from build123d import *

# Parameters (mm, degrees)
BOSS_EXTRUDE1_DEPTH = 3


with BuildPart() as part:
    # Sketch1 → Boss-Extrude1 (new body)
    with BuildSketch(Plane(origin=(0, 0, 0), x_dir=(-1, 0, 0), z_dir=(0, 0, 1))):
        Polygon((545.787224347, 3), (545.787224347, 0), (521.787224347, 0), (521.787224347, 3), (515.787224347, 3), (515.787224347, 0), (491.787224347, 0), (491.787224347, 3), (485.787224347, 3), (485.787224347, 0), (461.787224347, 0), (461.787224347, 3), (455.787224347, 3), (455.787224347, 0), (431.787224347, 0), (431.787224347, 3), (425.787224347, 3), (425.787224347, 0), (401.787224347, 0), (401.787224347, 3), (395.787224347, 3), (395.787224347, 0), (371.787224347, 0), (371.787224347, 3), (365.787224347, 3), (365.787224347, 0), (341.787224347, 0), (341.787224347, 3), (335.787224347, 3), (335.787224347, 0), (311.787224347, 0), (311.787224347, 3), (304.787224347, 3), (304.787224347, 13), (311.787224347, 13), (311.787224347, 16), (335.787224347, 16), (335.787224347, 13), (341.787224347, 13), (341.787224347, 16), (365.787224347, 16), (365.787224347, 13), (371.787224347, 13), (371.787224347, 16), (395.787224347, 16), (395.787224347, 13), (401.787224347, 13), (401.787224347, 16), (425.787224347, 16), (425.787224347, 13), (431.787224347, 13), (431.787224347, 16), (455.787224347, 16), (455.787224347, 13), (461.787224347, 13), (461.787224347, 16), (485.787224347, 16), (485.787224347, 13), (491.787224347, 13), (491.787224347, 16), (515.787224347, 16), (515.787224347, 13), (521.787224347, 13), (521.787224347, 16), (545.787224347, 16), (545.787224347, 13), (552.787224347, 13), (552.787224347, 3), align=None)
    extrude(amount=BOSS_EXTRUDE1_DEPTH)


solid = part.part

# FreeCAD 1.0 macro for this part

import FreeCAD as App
import Part
import Sketcher

doc = App.newDocument("Part")
body = doc.addObject("PartDesign::Body", "Body")

sketch1 = body.newObject("Sketcher::SketchObject", "Sketch")
sketch1.AttachmentSupport = (doc.getObject("XY_Plane"), [""])
sketch1.MapMode = "FlatFace"
sketch1.addGeometry([
    Part.LineSegment(App.Vector(-545.8, 0, 0), App.Vector(-545.8, -3, 0)),
    Part.LineSegment(App.Vector(-545.8, -3, 0), App.Vector(-552.8, -3, 0)),
    Part.LineSegment(App.Vector(-552.8, -3, 0), App.Vector(-552.8, -13, 0)),
    Part.LineSegment(App.Vector(-552.8, -13, 0), App.Vector(-545.8, -13, 0)),
    Part.LineSegment(App.Vector(-545.8, -13, 0), App.Vector(-545.8, -16, 0)),
    Part.LineSegment(App.Vector(-545.8, -16, 0), App.Vector(-521.8, -16, 0)),
    Part.LineSegment(App.Vector(-521.8, -16, 0), App.Vector(-521.8, -13, 0)),
    Part.LineSegment(App.Vector(-521.8, -13, 0), App.Vector(-515.8, -13, 0)),
    Part.LineSegment(App.Vector(-515.8, -13, 0), App.Vector(-515.8, -16, 0)),
    Part.LineSegment(App.Vector(-515.8, -16, 0), App.Vector(-491.8, -16, 0)),
    Part.LineSegment(App.Vector(-491.8, -16, 0), App.Vector(-491.8, -13, 0)),
    Part.LineSegment(App.Vector(-491.8, -13, 0), App.Vector(-485.8, -13, 0)),
    Part.LineSegment(App.Vector(-485.8, -13, 0), App.Vector(-485.8, -16, 0)),
    Part.LineSegment(App.Vector(-485.8, -16, 0), App.Vector(-461.8, -16, 0)),
    Part.LineSegment(App.Vector(-461.8, -16, 0), App.Vector(-461.8, -13, 0)),
    Part.LineSegment(App.Vector(-461.8, -13, 0), App.Vector(-455.8, -13, 0)),
    Part.LineSegment(App.Vector(-455.8, -13, 0), App.Vector(-455.8, -16, 0)),
    Part.LineSegment(App.Vector(-455.8, -16, 0), App.Vector(-431.8, -16, 0)),
    Part.LineSegment(App.Vector(-431.8, -16, 0), App.Vector(-431.8, -13, 0)),
    Part.LineSegment(App.Vector(-431.8, -13, 0), App.Vector(-425.8, -13, 0)),
    Part.LineSegment(App.Vector(-425.8, -13, 0), App.Vector(-425.8, -16, 0)),
    Part.LineSegment(App.Vector(-425.8, -16, 0), App.Vector(-401.8, -16, 0)),
    Part.LineSegment(App.Vector(-401.8, -16, 0), App.Vector(-401.8, -13, 0)),
    Part.LineSegment(App.Vector(-401.8, -13, 0), App.Vector(-395.8, -13, 0)),
    Part.LineSegment(App.Vector(-395.8, -13, 0), App.Vector(-395.8, -16, 0)),
    Part.LineSegment(App.Vector(-395.8, -16, 0), App.Vector(-371.8, -16, 0)),
    Part.LineSegment(App.Vector(-371.8, -16, 0), App.Vector(-371.8, -13, 0)),
    Part.LineSegment(App.Vector(-371.8, -13, 0), App.Vector(-365.8, -13, 0)),
    Part.LineSegment(App.Vector(-365.8, -13, 0), App.Vector(-365.8, -16, 0)),
    Part.LineSegment(App.Vector(-365.8, -16, 0), App.Vector(-341.8, -16, 0)),
    Part.LineSegment(App.Vector(-341.8, -16, 0), App.Vector(-341.8, -13, 0)),
    Part.LineSegment(App.Vector(-341.8, -13, 0), App.Vector(-335.8, -13, 0)),
    Part.LineSegment(App.Vector(-335.8, -13, 0), App.Vector(-335.8, -16, 0)),
    Part.LineSegment(App.Vector(-335.8, -16, 0), App.Vector(-311.8, -16, 0)),
    Part.LineSegment(App.Vector(-311.8, -16, 0), App.Vector(-311.8, -13, 0)),
    Part.LineSegment(App.Vector(-311.8, -13, 0), App.Vector(-304.8, -13, 0)),
    Part.LineSegment(App.Vector(-304.8, -13, 0), App.Vector(-304.8, -3, 0)),
    Part.LineSegment(App.Vector(-304.8, -3, 0), App.Vector(-311.8, -3, 0)),
    Part.LineSegment(App.Vector(-311.8, -3, 0), App.Vector(-311.8, 0, 0)),
    Part.LineSegment(App.Vector(-311.8, 0, 0), App.Vector(-335.8, 0, 0)),
    Part.LineSegment(App.Vector(-335.8, 0, 0), App.Vector(-335.8, -3, 0)),
    Part.LineSegment(App.Vector(-335.8, -3, 0), App.Vector(-341.8, -3, 0)),
    Part.LineSegment(App.Vector(-341.8, -3, 0), App.Vector(-341.8, 0, 0)),
    Part.LineSegment(App.Vector(-341.8, 0, 0), App.Vector(-365.8, 0, 0)),
    Part.LineSegment(App.Vector(-365.8, 0, 0), App.Vector(-365.8, -3, 0)),
    Part.LineSegment(App.Vector(-365.8, -3, 0), App.Vector(-371.8, -3, 0)),
    Part.LineSegment(App.Vector(-371.8, -3, 0), App.Vector(-371.8, 0, 0)),
    Part.LineSegment(App.Vector(-371.8, 0, 0), App.Vector(-395.8, 0, 0)),
    Part.LineSegment(App.Vector(-395.8, 0, 0), App.Vector(-395.8, -3, 0)),
    Part.LineSegment(App.Vector(-395.8, -3, 0), App.Vector(-401.8, -3, 0)),
    Part.LineSegment(App.Vector(-401.8, -3, 0), App.Vector(-401.8, 0, 0)),
    Part.LineSegment(App.Vector(-401.8, 0, 0), App.Vector(-425.8, 0, 0)),
    Part.LineSegment(App.Vector(-425.8, 0, 0), App.Vector(-425.8, -3, 0)),
    Part.LineSegment(App.Vector(-425.8, -3, 0), App.Vector(-431.8, -3, 0)),
    Part.LineSegment(App.Vector(-431.8, -3, 0), App.Vector(-431.8, 0, 0)),
    Part.LineSegment(App.Vector(-431.8, 0, 0), App.Vector(-455.8, 0, 0)),
    Part.LineSegment(App.Vector(-455.8, 0, 0), App.Vector(-455.8, -3, 0)),
    Part.LineSegment(App.Vector(-455.8, -3, 0), App.Vector(-461.8, -3, 0)),
    Part.LineSegment(App.Vector(-461.8, -3, 0), App.Vector(-461.8, 0, 0)),
    Part.LineSegment(App.Vector(-461.8, 0, 0), App.Vector(-485.8, 0, 0)),
    Part.LineSegment(App.Vector(-485.8, 0, 0), App.Vector(-485.8, -3, 0)),
    Part.LineSegment(App.Vector(-485.8, -3, 0), App.Vector(-491.8, -3, 0)),
    Part.LineSegment(App.Vector(-491.8, -3, 0), App.Vector(-491.8, 0, 0)),
    Part.LineSegment(App.Vector(-491.8, 0, 0), App.Vector(-515.8, 0, 0)),
    Part.LineSegment(App.Vector(-515.8, 0, 0), App.Vector(-515.8, -3, 0)),
    Part.LineSegment(App.Vector(-515.8, -3, 0), App.Vector(-521.8, -3, 0)),
    Part.LineSegment(App.Vector(-521.8, -3, 0), App.Vector(-521.8, 0, 0)),
    Part.LineSegment(App.Vector(-521.8, 0, 0), App.Vector(-545.8, 0, 0)),
], False)
sketch1.addConstraint([
    Sketcher.Constraint("Coincident", 0, 2, 1, 1),
    Sketcher.Constraint("Coincident", 1, 2, 2, 1),
    Sketcher.Constraint("Coincident", 2, 2, 3, 1),
    Sketcher.Constraint("Coincident", 3, 2, 4, 1),
    Sketcher.Constraint("Coincident", 4, 2, 5, 1),
    Sketcher.Constraint("Coincident", 5, 2, 6, 1),
    Sketcher.Constraint("Coincident", 6, 2, 7, 1),
    Sketcher.Constraint("Coincident", 7, 2, 8, 1),
    Sketcher.Constraint("Coincident", 8, 2, 9, 1),
    Sketcher.Constraint("Coincident", 9, 2, 10, 1),
    Sketcher.Constraint("Coincident", 10, 2, 11, 1),
    Sketcher.Constraint("Coincident", 11, 2, 12, 1),
    Sketcher.Constraint("Coincident", 12, 2, 13, 1),
    Sketcher.Constraint("Coincident", 13, 2, 14, 1),
    Sketcher.Constraint("Coincident", 14, 2, 15, 1),
    Sketcher.Constraint("Coincident", 15, 2, 16, 1),
    Sketcher.Constraint("Coincident", 16, 2, 17, 1),
    Sketcher.Constraint("Coincident", 17, 2, 18, 1),
    Sketcher.Constraint("Coincident", 18, 2, 19, 1),
    Sketcher.Constraint("Coincident", 19, 2, 20, 1),
    Sketcher.Constraint("Coincident", 20, 2, 21, 1),
    Sketcher.Constraint("Coincident", 21, 2, 22, 1),
    Sketcher.Constraint("Coincident", 22, 2, 23, 1),
    Sketcher.Constraint("Coincident", 23, 2, 24, 1),
    Sketcher.Constraint("Coincident", 24, 2, 25, 1),
    Sketcher.Constraint("Coincident", 25, 2, 26, 1),
    Sketcher.Constraint("Coincident", 26, 2, 27, 1),
    Sketcher.Constraint("Coincident", 27, 2, 28, 1),
    Sketcher.Constraint("Coincident", 28, 2, 29, 1),
    Sketcher.Constraint("Coincident", 29, 2, 30, 1),
    Sketcher.Constraint("Coincident", 30, 2, 31, 1),
    Sketcher.Constraint("Coincident", 31, 2, 32, 1),
    Sketcher.Constraint("Coincident", 32, 2, 33, 1),
    Sketcher.Constraint("Coincident", 33, 2, 34, 1),
    Sketcher.Constraint("Coincident", 34, 2, 35, 1),
    Sketcher.Constraint("Coincident", 35, 2, 36, 1),
    Sketcher.Constraint("Coincident", 36, 2, 37, 1),
    Sketcher.Constraint("Coincident", 37, 2, 38, 1),
    Sketcher.Constraint("Coincident", 38, 2, 39, 1),
    Sketcher.Constraint("Coincident", 39, 2, 40, 1),
    Sketcher.Constraint("Coincident", 40, 2, 41, 1),
    Sketcher.Constraint("Coincident", 41, 2, 42, 1),
    Sketcher.Constraint("Coincident", 42, 2, 43, 1),
    Sketcher.Constraint("Coincident", 43, 2, 44, 1),
    Sketcher.Constraint("Coincident", 44, 2, 45, 1),
    Sketcher.Constraint("Coincident", 45, 2, 46, 1),
    Sketcher.Constraint("Coincident", 46, 2, 47, 1),
    Sketcher.Constraint("Coincident", 47, 2, 48, 1),
    Sketcher.Constraint("Coincident", 48, 2, 49, 1),
    Sketcher.Constraint("Coincident", 49, 2, 50, 1),
    Sketcher.Constraint("Coincident", 50, 2, 51, 1),
    Sketcher.Constraint("Coincident", 51, 2, 52, 1),
    Sketcher.Constraint("Coincident", 52, 2, 53, 1),
    Sketcher.Constraint("Coincident", 53, 2, 54, 1),
    Sketcher.Constraint("Coincident", 54, 2, 55, 1),
    Sketcher.Constraint("Coincident", 55, 2, 56, 1),
    Sketcher.Constraint("Coincident", 56, 2, 57, 1),
    Sketcher.Constraint("Coincident", 57, 2, 58, 1),
    Sketcher.Constraint("Coincident", 58, 2, 59, 1),
    Sketcher.Constraint("Coincident", 59, 2, 60, 1),
    Sketcher.Constraint("Coincident", 60, 2, 61, 1),
    Sketcher.Constraint("Coincident", 61, 2, 62, 1),
    Sketcher.Constraint("Coincident", 62, 2, 63, 1),
    Sketcher.Constraint("Coincident", 63, 2, 64, 1),
    Sketcher.Constraint("Coincident", 64, 2, 65, 1),
    Sketcher.Constraint("Coincident", 65, 2, 66, 1),
    Sketcher.Constraint("Coincident", 66, 2, 67, 1),
    Sketcher.Constraint("Coincident", 67, 2, 0, 1),
    Sketcher.Constraint("Vertical", 0),
    Sketcher.Constraint("Horizontal", 1),
    Sketcher.Constraint("Vertical", 2),
    Sketcher.Constraint("Horizontal", 3),
    Sketcher.Constraint("Vertical", 4),
    Sketcher.Constraint("Horizontal", 5),
    Sketcher.Constraint("Vertical", 6),
    Sketcher.Constraint("Horizontal", 7),
    Sketcher.Constraint("Vertical", 8),
    Sketcher.Constraint("Horizontal", 9),
    Sketcher.Constraint("Vertical", 10),
    Sketcher.Constraint("Horizontal", 11),
    Sketcher.Constraint("Vertical", 12),
    Sketcher.Constraint("Horizontal", 13),
    Sketcher.Constraint("Vertical", 14),
    Sketcher.Constraint("Horizontal", 15),
    Sketcher.Constraint("Vertical", 16),
    Sketcher.Constraint("Horizontal", 17),
    Sketcher.Constraint("Vertical", 18),
    Sketcher.Constraint("Horizontal", 19),
    Sketcher.Constraint("Vertical", 20),
    Sketcher.Constraint("Horizontal", 21),
    Sketcher.Constraint("Vertical", 22),
    Sketcher.Constraint("Horizontal", 23),
    Sketcher.Constraint("Vertical", 24),
    Sketcher.Constraint("Horizontal", 25),
    Sketcher.Constraint("Vertical", 26),
    Sketcher.Constraint("Horizontal", 27),
    Sketcher.Constraint("Vertical", 28),
    Sketcher.Constraint("Horizontal", 29),
    Sketcher.Constraint("Vertical", 30),
    Sketcher.Constraint("Horizontal", 31),
    Sketcher.Constraint("Vertical", 32),
    Sketcher.Constraint("Horizontal", 33),
    Sketcher.Constraint("Vertical", 34),
    Sketcher.Constraint("Horizontal", 35),
    Sketcher.Constraint("Vertical", 36),
    Sketcher.Constraint("Horizontal", 37),
    Sketcher.Constraint("Vertical", 38),
    Sketcher.Constraint("Horizontal", 39),
    Sketcher.Constraint("Vertical", 40),
    Sketcher.Constraint("Horizontal", 41),
    Sketcher.Constraint("Vertical", 42),
    Sketcher.Constraint("Horizontal", 43),
    Sketcher.Constraint("Vertical", 44),
    Sketcher.Constraint("Horizontal", 45),
    Sketcher.Constraint("Vertical", 46),
    Sketcher.Constraint("Horizontal", 47),
    Sketcher.Constraint("Vertical", 48),
    Sketcher.Constraint("Horizontal", 49),
    Sketcher.Constraint("Vertical", 50),
    Sketcher.Constraint("Horizontal", 51),
    Sketcher.Constraint("Vertical", 52),
    Sketcher.Constraint("Horizontal", 53),
    Sketcher.Constraint("Vertical", 54),
    Sketcher.Constraint("Horizontal", 55),
    Sketcher.Constraint("Vertical", 56),
    Sketcher.Constraint("Horizontal", 57),
    Sketcher.Constraint("Vertical", 58),
    Sketcher.Constraint("Horizontal", 59),
    Sketcher.Constraint("Vertical", 60),
    Sketcher.Constraint("Horizontal", 61),
    Sketcher.Constraint("Vertical", 62),
    Sketcher.Constraint("Horizontal", 63),
    Sketcher.Constraint("Vertical", 64),
    Sketcher.Constraint("Horizontal", 65),
    Sketcher.Constraint("Vertical", 66),
    Sketcher.Constraint("Horizontal", 67),
    Sketcher.Constraint("PointOnObject", 38, 2, -1),
    Sketcher.Constraint("PointOnObject", 42, 2, -1),
    Sketcher.Constraint("PointOnObject", 46, 2, -1),
    Sketcher.Constraint("PointOnObject", 50, 2, -1),
    Sketcher.Constraint("PointOnObject", 54, 2, -1),
    Sketcher.Constraint("PointOnObject", 58, 2, -1),
    Sketcher.Constraint("PointOnObject", 62, 2, -1),
    Sketcher.Constraint("PointOnObject", 66, 2, -1),
    Sketcher.Constraint("Horizontal", 3, 2, 6, 2),
    Sketcher.Constraint("Horizontal", 5, 2, 8, 2),
    Sketcher.Constraint("Horizontal", 7, 2, 10, 2),
    Sketcher.Constraint("Horizontal", 9, 2, 12, 2),
    Sketcher.Constraint("Horizontal", 11, 2, 14, 2),
    Sketcher.Constraint("Horizontal", 13, 2, 16, 2),
    Sketcher.Constraint("Horizontal", 15, 2, 18, 2),
    Sketcher.Constraint("Horizontal", 17, 2, 20, 2),
    Sketcher.Constraint("Horizontal", 19, 2, 22, 2),
    Sketcher.Constraint("Horizontal", 21, 2, 24, 2),
    Sketcher.Constraint("Horizontal", 23, 2, 26, 2),
    Sketcher.Constraint("Horizontal", 25, 2, 28, 2),
    Sketcher.Constraint("Horizontal", 27, 2, 30, 2),
    Sketcher.Constraint("Horizontal", 29, 2, 32, 2),
    Sketcher.Constraint("Horizontal", 31, 2, 34, 2),
    Sketcher.Constraint("Horizontal", 1, 2, 36, 2),
    Sketcher.Constraint("Horizontal", 37, 2, 40, 2),
    Sketcher.Constraint("Horizontal", 41, 2, 44, 2),
    Sketcher.Constraint("Horizontal", 45, 2, 48, 2),
    Sketcher.Constraint("Horizontal", 49, 2, 52, 2),
    Sketcher.Constraint("Horizontal", 53, 2, 56, 2),
    Sketcher.Constraint("Horizontal", 57, 2, 60, 2),
    Sketcher.Constraint("Horizontal", 61, 2, 64, 2),
    Sketcher.Constraint("Vertical", 0, 2, 3, 2),
    Sketcher.Constraint("Vertical", 34, 2, 37, 2),
    Sketcher.Constraint("Vertical", 32, 2, 39, 2),
    Sketcher.Constraint("Vertical", 30, 2, 41, 2),
    Sketcher.Constraint("Vertical", 28, 2, 43, 2),
    Sketcher.Constraint("Vertical", 26, 2, 45, 2),
    Sketcher.Constraint("Vertical", 24, 2, 47, 2),
    Sketcher.Constraint("Vertical", 22, 2, 49, 2),
    Sketcher.Constraint("Vertical", 20, 2, 51, 2),
    Sketcher.Constraint("Vertical", 18, 2, 53, 2),
    Sketcher.Constraint("Vertical", 16, 2, 55, 2),
    Sketcher.Constraint("Vertical", 14, 2, 57, 2),
    Sketcher.Constraint("Vertical", 12, 2, 59, 2),
    Sketcher.Constraint("Vertical", 10, 2, 61, 2),
    Sketcher.Constraint("Vertical", 8, 2, 63, 2),
    Sketcher.Constraint("Vertical", 6, 2, 65, 2),
    Sketcher.Constraint("Equal", 5, 9),
    Sketcher.Constraint("Equal", 7, 11),
    Sketcher.Constraint("Equal", 9, 13),
    Sketcher.Constraint("Equal", 11, 15),
    Sketcher.Constraint("Equal", 13, 17),
    Sketcher.Constraint("Equal", 15, 19),
    Sketcher.Constraint("Equal", 17, 21),
    Sketcher.Constraint("Equal", 19, 23),
    Sketcher.Constraint("Equal", 21, 25),
    Sketcher.Constraint("Equal", 23, 27),
    Sketcher.Constraint("Equal", 25, 29),
    Sketcher.Constraint("Equal", 27, 31),
    Sketcher.Constraint("Equal", 29, 33),
    Sketcher.Constraint("Equal", 3, 35),
    Sketcher.Constraint("Equal", 0, 4),
    Sketcher.Constraint("DistanceX", 1, 2, 1, 1, 7.0),
    Sketcher.Constraint("DistanceX", 5, 1, 5, 2, 24.0),
    Sketcher.Constraint("DistanceX", 7, 1, 7, 2, 6.0),
    Sketcher.Constraint("DistanceY", 0, 2, 0, 1, 3.0),
    Sketcher.Constraint("DistanceY", 2, 2, 2, 1, 10.0),
    Sketcher.Constraint("DistanceX", 0, 2, -1, 1, 545.787224),
])
pad1 = body.newObject("PartDesign::Pad", "Pad")
pad1.Profile = sketch1
pad1.Length = 3

doc.recompute()
